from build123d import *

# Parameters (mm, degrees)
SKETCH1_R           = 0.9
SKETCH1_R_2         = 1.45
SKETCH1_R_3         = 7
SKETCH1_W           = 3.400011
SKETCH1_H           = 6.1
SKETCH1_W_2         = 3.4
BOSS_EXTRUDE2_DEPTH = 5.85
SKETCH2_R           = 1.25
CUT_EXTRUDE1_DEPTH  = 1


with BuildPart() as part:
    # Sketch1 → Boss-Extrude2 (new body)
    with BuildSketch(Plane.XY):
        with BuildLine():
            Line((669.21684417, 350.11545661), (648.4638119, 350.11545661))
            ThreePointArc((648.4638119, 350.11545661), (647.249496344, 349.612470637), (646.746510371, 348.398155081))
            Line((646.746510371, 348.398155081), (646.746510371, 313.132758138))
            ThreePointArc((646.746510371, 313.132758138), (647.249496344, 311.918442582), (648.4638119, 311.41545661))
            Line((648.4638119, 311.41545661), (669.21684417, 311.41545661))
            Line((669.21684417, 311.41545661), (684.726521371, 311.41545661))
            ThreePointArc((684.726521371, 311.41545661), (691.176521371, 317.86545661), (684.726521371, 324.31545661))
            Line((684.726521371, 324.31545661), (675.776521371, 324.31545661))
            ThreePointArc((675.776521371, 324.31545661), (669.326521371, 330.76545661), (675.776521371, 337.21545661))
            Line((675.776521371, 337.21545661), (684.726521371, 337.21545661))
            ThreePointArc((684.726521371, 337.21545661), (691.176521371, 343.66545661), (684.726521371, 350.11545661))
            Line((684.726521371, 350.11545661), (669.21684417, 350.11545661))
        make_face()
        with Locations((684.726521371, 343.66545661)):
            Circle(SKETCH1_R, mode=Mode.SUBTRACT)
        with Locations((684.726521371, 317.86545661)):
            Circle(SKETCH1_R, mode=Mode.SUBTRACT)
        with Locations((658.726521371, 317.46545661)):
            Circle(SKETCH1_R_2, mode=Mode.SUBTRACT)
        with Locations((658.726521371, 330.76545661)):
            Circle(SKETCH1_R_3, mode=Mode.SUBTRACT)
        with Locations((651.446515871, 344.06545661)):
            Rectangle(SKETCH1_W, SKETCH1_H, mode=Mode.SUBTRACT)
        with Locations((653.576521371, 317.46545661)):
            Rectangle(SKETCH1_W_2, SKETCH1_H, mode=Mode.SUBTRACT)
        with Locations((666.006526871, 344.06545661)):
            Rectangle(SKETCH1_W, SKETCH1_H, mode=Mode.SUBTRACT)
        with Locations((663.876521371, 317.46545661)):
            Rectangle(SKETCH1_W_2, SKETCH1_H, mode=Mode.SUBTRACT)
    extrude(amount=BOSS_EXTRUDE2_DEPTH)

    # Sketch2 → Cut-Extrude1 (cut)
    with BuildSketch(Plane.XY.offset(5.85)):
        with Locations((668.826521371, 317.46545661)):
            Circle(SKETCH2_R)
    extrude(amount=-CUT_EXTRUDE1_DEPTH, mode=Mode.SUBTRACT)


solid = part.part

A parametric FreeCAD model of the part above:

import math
import FreeCAD as App
import Part
import Sketcher

V = App.Vector


def add_polygon(sketch, points):
    """Adds a closed chain of lines whose ends are joined by coincident constraints."""
    first, n = sketch.GeometryCount, len(points)
    for a, b in zip(points, points[1:] + points[:1]):
        sketch.addGeometry(Part.LineSegment(App.Vector(*a, 0), App.Vector(*b, 0)), False)
    for i in range(n):
        sketch.addConstraint(Sketcher.Constraint("Coincident", first + i, 2, first + (i + 1) % n, 1))

doc = App.newDocument("Part")
body = doc.addObject("PartDesign::Body", "Body")

# Sketch on XY plane
sketch1 = body.newObject("Sketcher::SketchObject", "Sketch")
sketch1.AttachmentSupport = (doc.getObject("XY_Plane"), [""])
sketch1.MapMode = "FlatFace"
sketch1.addGeometry(Part.ArcOfCircle(Part.Circle(V(648.5, 348.4, 0), V(0, 0, 1), 1.7), math.radians(90), math.radians(180)), False)  # 0
sketch1.addGeometry(Part.LineSegment(V(646.7, 348.4, 0), V(646.7, 313.1, 0)), False)  # 1
sketch1.addGeometry(Part.ArcOfCircle(Part.Circle(V(648.5, 313.1, 0), V(0, 0, 1), 1.7), math.radians(-180), math.radians(-90)), False)  # 2
sketch1.addGeometry(Part.LineSegment(V(648.5, 311.4, 0), V(684.7, 311.4, 0)), False)  # 3
sketch1.addGeometry(Part.ArcOfCircle(Part.Circle(V(684.7, 317.9, 0), V(0, 0, 1), 6.5), math.radians(-90), math.radians(90)), False)  # 4
sketch1.addGeometry(Part.LineSegment(V(684.7, 324.3, 0), V(675.8, 324.3, 0)), False)  # 5
sketch1.addGeometry(Part.ArcOfCircle(Part.Circle(V(675.8, 330.8, 0), V(0, 0, 1), 6.5), math.radians(90), math.radians(270)), False)  # 6
sketch1.addGeometry(Part.LineSegment(V(675.8, 337.2, 0), V(684.7, 337.2, 0)), False)  # 7
sketch1.addGeometry(Part.ArcOfCircle(Part.Circle(V(684.7, 343.7, 0), V(0, 0, 1), 6.5), math.radians(-90), math.radians(90)), False)  # 8
sketch1.addGeometry(Part.LineSegment(V(684.7, 350.1, 0), V(648.5, 350.1, 0)), False)  # 9
add_polygon(sketch1, [(655.3, 314.4), (651.9, 314.4), (651.9, 320.5), (655.3, 320.5)])  # lines 10-13
sketch1.addGeometry(Part.Circle(V(658.7, 317.5, 0), V(0, 0, 1), 1.4), False)  # 14
add_polygon(sketch1, [(665.6, 314.4), (662.2, 314.4), (662.2, 320.5), (665.6, 320.5)])  # lines 15-18
sketch1.addGeometry(Part.Circle(V(684.7, 317.9, 0), V(0, 0, 1), 0.9), False)  # 19
sketch1.addGeometry(Part.Circle(V(658.7, 330.8, 0), V(0, 0, 1), 7), False)  # 20
add_polygon(sketch1, [(653.1, 341), (649.7, 341), (649.7, 347.1), (653.1, 347.1)])  # lines 21-24
add_polygon(sketch1, [(667.7, 341), (664.3, 341), (664.3, 347.1), (667.7, 347.1)])  # lines 25-28
sketch1.addGeometry(Part.Circle(V(684.7, 343.7, 0), V(0, 0, 1), 0.9), False)  # 29
sketch1.addConstraint(Sketcher.Constraint("Tangent", 0, 2, 1, 1))
sketch1.addConstraint(Sketcher.Constraint("Tangent", 1, 2, 2, 1))
sketch1.addConstraint(Sketcher.Constraint("Tangent", 2, 2, 3, 1))
sketch1.addConstraint(Sketcher.Constraint("Tangent", 3, 2, 4, 1))
sketch1.addConstraint(Sketcher.Constraint("Tangent", 4, 2, 5, 1))
sketch1.addConstraint(Sketcher.Constraint("Tangent", 5, 2, 6, 2))
sketch1.addConstraint(Sketcher.Constraint("Tangent", 6, 1, 7, 1))
sketch1.addConstraint(Sketcher.Constraint("Tangent", 7, 2, 8, 1))
sketch1.addConstraint(Sketcher.Constraint("Tangent", 8, 2, 9, 1))
sketch1.addConstraint(Sketcher.Constraint("Tangent", 9, 2, 0, 1))
sketch1.addConstraint(Sketcher.Constraint("Vertical", 1))
sketch1.addConstraint(Sketcher.Constraint("Horizontal", 3))
sketch1.addConstraint(Sketcher.Constraint("Horizontal", 5))
sketch1.addConstraint(Sketcher.Constraint("Horizontal", 7))
sketch1.addConstraint(Sketcher.Constraint("Horizontal", 9))
sketch1.addConstraint(Sketcher.Constraint("Horizontal", 10))
sketch1.addConstraint(Sketcher.Constraint("Vertical", 11))
sketch1.addConstraint(Sketcher.Constraint("Horizontal", 12))
sketch1.addConstraint(Sketcher.Constraint("Vertical", 13))
sketch1.addConstraint(Sketcher.Constraint("Horizontal", 15))
sketch1.addConstraint(Sketcher.Constraint("Vertical", 16))
sketch1.addConstraint(Sketcher.Constraint("Horizontal", 17))
sketch1.addConstraint(Sketcher.Constraint("Vertical", 18))
sketch1.addConstraint(Sketcher.Constraint("Horizontal", 21))
sketch1.addConstraint(Sketcher.Constraint("Vertical", 22))
sketch1.addConstraint(Sketcher.Constraint("Horizontal", 23))
sketch1.addConstraint(Sketcher.Constraint("Vertical", 24))
sketch1.addConstraint(Sketcher.Constraint("Horizontal", 25))
sketch1.addConstraint(Sketcher.Constraint("Vertical", 26))
sketch1.addConstraint(Sketcher.Constraint("Horizontal", 27))
sketch1.addConstraint(Sketcher.Constraint("Vertical", 28))
sketch1.addConstraint(Sketcher.Constraint("Coincident", 19, 3, 4, 3))
sketch1.addConstraint(Sketcher.Constraint("Coincident", 29, 3, 8, 3))
sketch1.addConstraint(Sketcher.Constraint("Equal", 0, 2))
sketch1.addConstraint(Sketcher.Constraint("Equal", 4, 6))
sketch1.addConstraint(Sketcher.Constraint("Equal", 6, 8))
sketch1.addConstraint(Sketcher.Constraint("Equal", 19, 29))
sketch1.addConstraint(Sketcher.Constraint("Horizontal", 6, 3, 20, 3))
sketch1.addConstraint(Sketcher.Constraint("Horizontal", 13, 2, 15, 2))
sketch1.addConstraint(Sketcher.Constraint("Horizontal", 12, 2, 16, 2))
sketch1.addConstraint(Sketcher.Constraint("Horizontal", 24, 2, 25, 2))
sketch1.addConstraint(Sketcher.Constraint("Horizontal", 23, 2, 26, 2))
sketch1.addConstraint(Sketcher.Constraint("Vertical", 4, 3, 8, 3))
sketch1.addConstraint(Sketcher.Constraint("Vertical", 14, 3, 20, 3))
sketch1.addConstraint(Sketcher.Constraint("Equal", 12, 15))
sketch1.addConstraint(Sketcher.Constraint("Equal", 23, 25))
sketch1.addConstraint(Sketcher.Constraint("Equal", 18, 22))
sketch1.addConstraint(Sketcher.Constraint("Diameter", 20, 14.0))
sketch1.addConstraint(Sketcher.Constraint("Diameter", 14, 2.9))
sketch1.addConstraint(Sketcher.Constraint("Diameter", 19, 1.8))
sketch1.addConstraint(Sketcher.Constraint("Radius", 4, 6.45))
sketch1.addConstraint(Sketcher.Constraint("DistanceX", 10, 2, 10, 1, 3.4))
sketch1.addConstraint(Sketcher.Constraint("DistanceY", 11, 1, 11, 2, 6.1))
sketch1.addConstraint(Sketcher.Constraint("DistanceX", 14, 3, 4, 3, 26.0))
sketch1.addConstraint(Sketcher.Constraint("DistanceY", 2, 2, 10, 2, 3.0))
sketch1.addConstraint(Sketcher.Constraint("DistanceX", 0, 2, 21, 2, 3.0))
sketch1.addConstraint(Sketcher.Constraint("DistanceY", 22, 2, 9, 2, 3.0))
sketch1.addConstraint(Sketcher.Constraint("DistanceX", 5, 2, 5, 1, 8.95))
sketch1.addConstraint(Sketcher.Constraint("Radius", 0, 1.717302))
sketch1.addConstraint(Sketcher.Constraint("DistanceY", 14, 3, 6, 3, 13.3))
sketch1.addConstraint(Sketcher.Constraint("DistanceX", 13, 2, 15, 2, 6.9))
sketch1.addConstraint(Sketcher.Constraint("DistanceX", 17, 2, 5, 2, 10.2))
sketch1.addConstraint(Sketcher.Constraint("DistanceX", 24, 2, 25, 2, 11.16))
sketch1.addConstraint(Sketcher.Constraint("DistanceX", 20, 3, 25, 2, 5.58))
sketch1.addConstraint(Sketcher.Constraint("DistanceX", 3, 1, 3, 2, 36.262709))
sketch1.addConstraint(Sketcher.Constraint("DistanceX", -1, 1, 0, 3, 648.463812))
sketch1.addConstraint(Sketcher.Constraint("DistanceY", -1, 1, 2, 3, 313.132758))
pad1 = body.newObject("PartDesign::Pad", "Pad")
pad1.Profile = sketch1
pad1.Length = 5.85

# Sketch on XY plane
sketch2 = body.newObject("Sketcher::SketchObject", "Sketch001")
sketch2.AttachmentSupport = (doc.getObject("XY_Plane"), [""])
sketch2.MapMode = "FlatFace"
sketch2.AttachmentOffset = App.Placement(V(0, 0, 5.85), App.Rotation())
sketch2.addGeometry(Part.Circle(V(668.8, 317.5, 0), V(0, 0, 1), 1.2), False)
sketch2.addConstraint(Sketcher.Constraint("Diameter", 0, 2.5))
sketch2.addConstraint(Sketcher.Constraint("DistanceX", -1, 1, 0, 3, 668.826521))
sketch2.addConstraint(Sketcher.Constraint("DistanceY", -1, 1, 0, 3, 317.465457))
pocket1 = body.newObject("PartDesign::Pocket", "Pocket")
pocket1.Profile = sketch2
pocket1.Length = 1

doc.recompute()
